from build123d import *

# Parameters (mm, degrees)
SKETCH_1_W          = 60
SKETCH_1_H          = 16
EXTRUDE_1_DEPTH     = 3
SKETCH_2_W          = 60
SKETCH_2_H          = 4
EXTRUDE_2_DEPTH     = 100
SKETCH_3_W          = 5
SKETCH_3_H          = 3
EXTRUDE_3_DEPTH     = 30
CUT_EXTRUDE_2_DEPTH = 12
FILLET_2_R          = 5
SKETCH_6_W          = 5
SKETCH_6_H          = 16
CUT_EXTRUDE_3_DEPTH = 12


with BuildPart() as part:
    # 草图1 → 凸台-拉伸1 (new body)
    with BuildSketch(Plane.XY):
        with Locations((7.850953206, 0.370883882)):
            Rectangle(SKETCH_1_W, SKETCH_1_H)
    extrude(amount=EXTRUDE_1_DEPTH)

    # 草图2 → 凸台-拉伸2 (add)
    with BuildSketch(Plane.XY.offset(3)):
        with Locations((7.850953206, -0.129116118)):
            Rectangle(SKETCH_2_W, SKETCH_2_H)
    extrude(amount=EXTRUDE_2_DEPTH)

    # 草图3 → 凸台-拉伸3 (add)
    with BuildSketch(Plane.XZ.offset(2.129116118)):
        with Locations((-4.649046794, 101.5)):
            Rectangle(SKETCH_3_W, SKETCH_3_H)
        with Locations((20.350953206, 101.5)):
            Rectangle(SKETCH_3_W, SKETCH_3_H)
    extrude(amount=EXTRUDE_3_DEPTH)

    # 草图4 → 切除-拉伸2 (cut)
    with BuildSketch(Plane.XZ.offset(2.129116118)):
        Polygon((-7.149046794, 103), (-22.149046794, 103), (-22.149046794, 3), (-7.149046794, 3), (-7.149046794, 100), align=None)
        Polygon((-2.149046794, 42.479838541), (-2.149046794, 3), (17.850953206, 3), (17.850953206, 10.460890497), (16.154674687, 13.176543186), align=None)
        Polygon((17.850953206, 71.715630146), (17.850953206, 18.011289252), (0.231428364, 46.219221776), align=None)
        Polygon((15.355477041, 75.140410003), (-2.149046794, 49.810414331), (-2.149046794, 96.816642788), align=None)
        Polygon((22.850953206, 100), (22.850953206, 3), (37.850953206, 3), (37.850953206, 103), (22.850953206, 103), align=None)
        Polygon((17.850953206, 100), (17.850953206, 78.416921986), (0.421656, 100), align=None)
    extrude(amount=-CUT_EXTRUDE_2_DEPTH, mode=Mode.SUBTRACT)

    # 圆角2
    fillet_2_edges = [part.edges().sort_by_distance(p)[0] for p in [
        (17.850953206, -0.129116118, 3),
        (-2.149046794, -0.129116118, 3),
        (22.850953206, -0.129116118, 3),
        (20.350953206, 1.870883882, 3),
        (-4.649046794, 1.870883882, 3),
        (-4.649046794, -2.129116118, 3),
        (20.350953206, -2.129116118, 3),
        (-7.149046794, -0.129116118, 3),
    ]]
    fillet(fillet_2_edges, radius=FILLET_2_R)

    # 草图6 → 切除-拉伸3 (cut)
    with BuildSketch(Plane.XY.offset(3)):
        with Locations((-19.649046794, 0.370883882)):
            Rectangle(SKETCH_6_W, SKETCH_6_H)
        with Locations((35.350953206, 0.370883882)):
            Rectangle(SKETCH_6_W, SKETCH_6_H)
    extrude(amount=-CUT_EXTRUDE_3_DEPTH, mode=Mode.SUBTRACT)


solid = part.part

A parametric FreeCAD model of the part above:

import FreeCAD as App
import Part
import Sketcher

V = App.Vector


def edges_at(feature, points):
    """Names of the edges that pass closest to the given points."""
    edges = feature.Shape.Edges
    near = lambda p: min(range(len(edges)), key=lambda i: edges[i].distToShape(Part.Vertex(*p))[0])
    return sorted({f"Edge{near(p) + 1}" for p in points})

doc = App.newDocument("Part")
body = doc.addObject("PartDesign::Body", "Body")

# Sketch on XY plane
sketch1 = body.newObject("Sketcher::SketchObject", "Sketch")
sketch1.AttachmentSupport = (doc.getObject("XY_Plane"), [""])
sketch1.MapMode = "FlatFace"
sketch1.addGeometry(Part.LineSegment(V(-22.149047, 8.370884, 0), V(-22.149047, -7.629116, 0)), False)
sketch1.addGeometry(Part.LineSegment(V(-22.149047, -7.629116, 0), V(37.850953, -7.629116, 0)), False)
sketch1.addGeometry(Part.LineSegment(V(37.850953, -7.629116, 0), V(37.850953, 8.370884, 0)), False)
sketch1.addGeometry(Part.LineSegment(V(37.850953, 8.370884, 0), V(-22.149047, 8.370884, 0)), False)
sketch1.addConstraint(Sketcher.Constraint("Coincident", 0, 2, 1, 1))
sketch1.addConstraint(Sketcher.Constraint("Coincident", 1, 2, 2, 1))
sketch1.addConstraint(Sketcher.Constraint("Coincident", 2, 2, 3, 1))
sketch1.addConstraint(Sketcher.Constraint("Coincident", 3, 2, 0, 1))
sketch1.addConstraint(Sketcher.Constraint("Vertical", 0))
sketch1.addConstraint(Sketcher.Constraint("Horizontal", 1))
sketch1.addConstraint(Sketcher.Constraint("Vertical", 2))
sketch1.addConstraint(Sketcher.Constraint("Horizontal", 3))
sketch1.addConstraint(Sketcher.Constraint("DistanceX", 1, 1, 1, 2, 60.0))
sketch1.addConstraint(Sketcher.Constraint("DistanceY", 0, 2, 0, 1, 16.0))
sketch1.addConstraint(Sketcher.Constraint("DistanceX", 0, 2, -1, 1, 22.149047))
sketch1.addConstraint(Sketcher.Constraint("DistanceY", 0, 2, -1, 1, 7.629116))
pad1 = body.newObject("PartDesign::Pad", "Pad")
pad1.Profile = sketch1
pad1.Length = 3

# Sketch on XY plane
sketch2 = body.newObject("Sketcher::SketchObject", "Sketch001")
sketch2.AttachmentSupport = (doc.getObject("XY_Plane"), [""])
sketch2.MapMode = "FlatFace"
sketch2.AttachmentOffset = App.Placement(V(0, 0, 3), App.Rotation())
sketch2.addGeometry(Part.LineSegment(V(-22.149047, 1.870884, 0), V(-22.149047, -2.129116, 0)), False)
sketch2.addGeometry(Part.LineSegment(V(-22.149047, -2.129116, 0), V(37.850953, -2.129116, 0)), False)
sketch2.addGeometry(Part.LineSegment(V(37.850953, -2.129116, 0), V(37.850953, 1.870884, 0)), False)
sketch2.addGeometry(Part.LineSegment(V(37.850953, 1.870884, 0), V(-22.149047, 1.870884, 0)), False)
sketch2.addConstraint(Sketcher.Constraint("Coincident", 0, 2, 1, 1))
sketch2.addConstraint(Sketcher.Constraint("Coincident", 1, 2, 2, 1))
sketch2.addConstraint(Sketcher.Constraint("Coincident", 2, 2, 3, 1))
sketch2.addConstraint(Sketcher.Constraint("Coincident", 3, 2, 0, 1))
sketch2.addConstraint(Sketcher.Constraint("Vertical", 0))
sketch2.addConstraint(Sketcher.Constraint("Horizontal", 1))
sketch2.addConstraint(Sketcher.Constraint("Vertical", 2))
sketch2.addConstraint(Sketcher.Constraint("Horizontal", 3))
sketch2.addConstraint(Sketcher.Constraint("DistanceX", 1, 1, 1, 2, 60.0))
sketch2.addConstraint(Sketcher.Constraint("DistanceY", 0, 2, 0, 1, 4.0))
sketch2.addConstraint(Sketcher.Constraint("DistanceX", 0, 2, -1, 1, 22.149047))
sketch2.addConstraint(Sketcher.Constraint("DistanceY", 0, 2, -1, 1, 2.129116))
pad2 = body.newObject("PartDesign::Pad", "Pad001")
pad2.Profile = sketch2
pad2.Length = 100

# Sketch on XZ plane
sketch3 = body.newObject("Sketcher::SketchObject", "Sketch002")
sketch3.AttachmentSupport = (doc.getObject("XZ_Plane"), [""])
sketch3.MapMode = "FlatFace"
sketch3.AttachmentOffset = App.Placement(V(0, 0, 2.129116), App.Rotation())
sketch3.addGeometry(Part.LineSegment(V(-7.149047, 103, 0), V(-7.149047, 100, 0)), False)
sketch3.addGeometry(Part.LineSegment(V(-7.149047, 100, 0), V(-2.149047, 100, 0)), False)
sketch3.addGeometry(Part.LineSegment(V(-2.149047, 100, 0), V(-2.149047, 103, 0)), False)
sketch3.addGeometry(Part.LineSegment(V(-2.149047, 103, 0), V(-7.149047, 103, 0)), False)
sketch3.addGeometry(Part.LineSegment(V(17.850953, 103, 0), V(17.850953, 100, 0)), False)
sketch3.addGeometry(Part.LineSegment(V(17.850953, 100, 0), V(22.850953, 100, 0)), False)
sketch3.addGeometry(Part.LineSegment(V(22.850953, 100, 0), V(22.850953, 103, 0)), False)
sketch3.addGeometry(Part.LineSegment(V(22.850953, 103, 0), V(17.850953, 103, 0)), False)
sketch3.addConstraint(Sketcher.Constraint("Coincident", 0, 2, 1, 1))
sketch3.addConstraint(Sketcher.Constraint("Coincident", 1, 2, 2, 1))
sketch3.addConstraint(Sketcher.Constraint("Coincident", 2, 2, 3, 1))
sketch3.addConstraint(Sketcher.Constraint("Coincident", 3, 2, 0, 1))
sketch3.addConstraint(Sketcher.Constraint("Coincident", 4, 2, 5, 1))
sketch3.addConstraint(Sketcher.Constraint("Coincident", 5, 2, 6, 1))
sketch3.addConstraint(Sketcher.Constraint("Coincident", 6, 2, 7, 1))
sketch3.addConstraint(Sketcher.Constraint("Coincident", 7, 2, 4, 1))
sketch3.addConstraint(Sketcher.Constraint("Vertical", 0))
sketch3.addConstraint(Sketcher.Constraint("Horizontal", 1))
sketch3.addConstraint(Sketcher.Constraint("Vertical", 2))
sketch3.addConstraint(Sketcher.Constraint("Horizontal", 3))
sketch3.addConstraint(Sketcher.Constraint("Vertical", 4))
sketch3.addConstraint(Sketcher.Constraint("Horizontal", 5))
sketch3.addConstraint(Sketcher.Constraint("Vertical", 6))
sketch3.addConstraint(Sketcher.Constraint("Horizontal", 7))
sketch3.addConstraint(Sketcher.Constraint("Horizontal", 1, 2, 4, 2))
sketch3.addConstraint(Sketcher.Constraint("Horizontal", 3, 2, 6, 2))
sketch3.addConstraint(Sketcher.Constraint("Equal", 3, 5))
sketch3.addConstraint(Sketcher.Constraint("DistanceX", 1, 1, 1, 2, 5.0))
sketch3.addConstraint(Sketcher.Constraint("DistanceY", 0, 2, 0, 1, 3.0))
sketch3.addConstraint(Sketcher.Constraint("DistanceY", -1, 1, 0, 2, 100.0))
sketch3.addConstraint(Sketcher.Constraint("DistanceX", 1, 2, 4, 2, 20.0))
sketch3.addConstraint(Sketcher.Constraint("DistanceX", 0, 2, -1, 1, 7.149047))
pad3 = body.newObject("PartDesign::Pad", "Pad002")
pad3.Profile = sketch3
pad3.Length = 30

# Sketch on XZ plane
sketch4 = body.newObject("Sketcher::SketchObject", "Sketch003")
sketch4.AttachmentSupport = (doc.getObject("XZ_Plane"), [""])
sketch4.MapMode = "FlatFace"
sketch4.AttachmentOffset = App.Placement(V(0, 0, 2.129116), App.Rotation())
sketch4.addGeometry(Part.LineSegment(V(-7.149047, 103, 0), V(-22.149047, 103, 0)), False)
sketch4.addGeometry(Part.LineSegment(V(-22.149047, 103, 0), V(-22.149047, 3, 0)), False)
sketch4.addGeometry(Part.LineSegment(V(-22.149047, 3, 0), V(-7.149047, 3, 0)), False)
sketch4.addGeometry(Part.LineSegment(V(-7.149047, 3, 0), V(-7.149047, 103, 0)), False)
sketch4.addGeometry(Part.LineSegment(V(-2.149047, 42.479839, 0), V(-2.149047, 3, 0)), False)
sketch4.addGeometry(Part.LineSegment(V(-2.149047, 3, 0), V(17.850953, 3, 0)), False)
sketch4.addGeometry(Part.LineSegment(V(17.850953, 3, 0), V(17.850953, 10.46089, 0)), False)
sketch4.addGeometry(Part.LineSegment(V(17.850953, 10.46089, 0), V(16.154675, 13.176543, 0)), False)
sketch4.addGeometry(Part.LineSegment(V(16.154675, 13.176543, 0), V(-2.149047, 42.479839, 0)), False)
sketch4.addGeometry(Part.LineSegment(V(17.850953, 18.011289, 0), V(17.850953, 71.71563, 0)), False)
sketch4.addGeometry(Part.LineSegment(V(17.850953, 71.71563, 0), V(0.231428, 46.219222, 0)), False)
sketch4.addGeometry(Part.LineSegment(V(0.231428, 46.219222, 0), V(17.850953, 18.011289, 0)), False)
sketch4.addGeometry(Part.LineSegment(V(-2.149047, 49.810414, 0), V(15.355477, 75.14041, 0)), False)
sketch4.addGeometry(Part.LineSegment(V(15.355477, 75.14041, 0), V(-2.149047, 96.816643, 0)), False)
sketch4.addGeometry(Part.LineSegment(V(-2.149047, 96.816643, 0), V(-2.149047, 49.810414, 0)), False)
sketch4.addGeometry(Part.LineSegment(V(22.850953, 3, 0), V(37.850953, 3, 0)), False)
sketch4.addGeometry(Part.LineSegment(V(37.850953, 3, 0), V(37.850953, 103, 0)), False)
sketch4.addGeometry(Part.LineSegment(V(37.850953, 103, 0), V(22.850953, 103, 0)), False)
sketch4.addGeometry(Part.LineSegment(V(22.850953, 103, 0), V(22.850953, 3, 0)), False)
sketch4.addGeometry(Part.LineSegment(V(17.850953, 78.416922, 0), V(17.850953, 100, 0)), False)
sketch4.addGeometry(Part.LineSegment(V(17.850953, 100, 0), V(0.421656, 100, 0)), False)
sketch4.addGeometry(Part.LineSegment(V(0.421656, 100, 0), V(17.850953, 78.416922, 0)), False)
sketch4.addConstraint(Sketcher.Constraint("Coincident", 0, 2, 1, 1))
sketch4.addConstraint(Sketcher.Constraint("Coincident", 1, 2, 2, 1))
sketch4.addConstraint(Sketcher.Constraint("Coincident", 2, 2, 3, 1))
sketch4.addConstraint(Sketcher.Constraint("Coincident", 3, 2, 0, 1))
sketch4.addConstraint(Sketcher.Constraint("Coincident", 4, 2, 5, 1))
sketch4.addConstraint(Sketcher.Constraint("Coincident", 5, 2, 6, 1))
sketch4.addConstraint(Sketcher.Constraint("Coincident", 6, 2, 7, 1))
sketch4.addConstraint(Sketcher.Constraint("Coincident", 7, 2, 8, 1))
sketch4.addConstraint(Sketcher.Constraint("Coincident", 8, 2, 4, 1))
sketch4.addConstraint(Sketcher.Constraint("Coincident", 9, 2, 10, 1))
sketch4.addConstraint(Sketcher.Constraint("Coincident", 10, 2, 11, 1))
sketch4.addConstraint(Sketcher.Constraint("Coincident", 11, 2, 9, 1))
sketch4.addConstraint(Sketcher.Constraint("Coincident", 12, 2, 13, 1))
sketch4.addConstraint(Sketcher.Constraint("Coincident", 13, 2, 14, 1))
sketch4.addConstraint(Sketcher.Constraint("Coincident", 14, 2, 12, 1))
sketch4.addConstraint(Sketcher.Constraint("Coincident", 15, 2, 16, 1))
sketch4.addConstraint(Sketcher.Constraint("Coincident", 16, 2, 17, 1))
sketch4.addConstraint(Sketcher.Constraint("Coincident", 17, 2, 18, 1))
sketch4.addConstraint(Sketcher.Constraint("Coincident", 18, 2, 15, 1))
sketch4.addConstraint(Sketcher.Constraint("Coincident", 19, 2, 20, 1))
sketch4.addConstraint(Sketcher.Constraint("Coincident", 20, 2, 21, 1))
sketch4.addConstraint(Sketcher.Constraint("Coincident", 21, 2, 19, 1))
sketch4.addConstraint(Sketcher.Constraint("Horizontal", 0))
sketch4.addConstraint(Sketcher.Constraint("Vertical", 1))
sketch4.addConstraint(Sketcher.Constraint("Horizontal", 2))
sketch4.addConstraint(Sketcher.Constraint("Vertical", 3))
sketch4.addConstraint(Sketcher.Constraint("Vertical", 4))
sketch4.addConstraint(Sketcher.Constraint("Horizontal", 5))
sketch4.addConstraint(Sketcher.Constraint("Vertical", 6))
sketch4.addConstraint(Sketcher.Constraint("Vertical", 9))
sketch4.addConstraint(Sketcher.Constraint("Vertical", 14))
sketch4.addConstraint(Sketcher.Constraint("Horizontal", 15))
sketch4.addConstraint(Sketcher.Constraint("Vertical", 16))
sketch4.addConstraint(Sketcher.Constraint("Horizontal", 17))
sketch4.addConstraint(Sketcher.Constraint("Vertical", 18))
sketch4.addConstraint(Sketcher.Constraint("Vertical", 19))
sketch4.addConstraint(Sketcher.Constraint("Horizontal", 20))
sketch4.addConstraint(Sketcher.Constraint("Parallel", 7, 8))
sketch4.addConstraint(Sketcher.Constraint("Parallel", 8, 11))
sketch4.addConstraint(Sketcher.Constraint("Parallel", 10, 12))
sketch4.addConstraint(Sketcher.Constraint("Parallel", 13, 21))
sketch4.addConstraint(Sketcher.Constraint("Horizontal", 2, 2, 4, 2))
sketch4.addConstraint(Sketcher.Constraint("Horizontal", 5, 2, 15, 2))
sketch4.addConstraint(Sketcher.Constraint("Horizontal", 3, 2, 16, 2))
sketch4.addConstraint(Sketcher.Constraint("Vertical", 6, 2, 9, 2))
sketch4.addConstraint(Sketcher.Constraint("Vertical", 8, 2, 13, 2))
sketch4.addConstraint(Sketcher.Constraint("Vertical", 11, 2, 19, 2))
sketch4.addConstraint(Sketcher.Constraint("Equal", 2, 15))
sketch4.addConstraint(Sketcher.Constraint("DistanceX", 0, 2, 0, 1, 15.0))
sketch4.addConstraint(Sketcher.Constraint("DistanceX", 5, 1, 5, 2, 20.0))
sketch4.addConstraint(Sketcher.Constraint("DistanceY", 1, 2, 1, 1, 100.0))
sketch4.addConstraint(Sketcher.Constraint("DistanceY", -1, 1, 0, 2, 103.0))
sketch4.addConstraint(Sketcher.Constraint("DistanceY", -1, 1, 19, 2, 100.0))
sketch4.addConstraint(Sketcher.Constraint("DistanceX", 2, 2, 4, 2, 5.0))
sketch4.addConstraint(Sketcher.Constraint("DistanceX", 5, 2, 15, 2, 20.0))
sketch4.addConstraint(Sketcher.Constraint("Distance", 8, 34.550099))
sketch4.addConstraint(Sketcher.Constraint("DistanceY", 4, 2, 4, 1, 39.479839))
sketch4.addConstraint(Sketcher.Constraint("DistanceY", 6, 1, 6, 2, 7.46089))
sketch4.addConstraint(Sketcher.Constraint("DistanceY", 9, 1, 9, 2, 53.704341))
sketch4.addConstraint(Sketcher.Constraint("DistanceY", 14, 2, 14, 1, 47.006228))
sketch4.addConstraint(Sketcher.Constraint("DistanceY", 19, 1, 19, 2, 21.583078))
sketch4.addConstraint(Sketcher.Constraint("DistanceY", 6, 2, 11, 2, 7.550399))
sketch4.addConstraint(Sketcher.Constraint("Distance", 10, 30.992168))
sketch4.addConstraint(Sketcher.Constraint("Distance", 21, 27.741839))
sketch4.addConstraint(Sketcher.Constraint("DistanceX", -1, 1, 10, 2, 0.231428))
sketch4.addConstraint(Sketcher.Constraint("DistanceY", -1, 1, 12, 2, 75.14041))
pocket1 = body.newObject("PartDesign::Pocket", "Pocket")
pocket1.Profile = sketch4
pocket1.Length = 12
doc.recompute()

fillet = body.newObject("PartDesign::Fillet", "Fillet")
fillet.Base = (pocket1, edges_at(pocket1, [
    (17.851, -0.129, 3),
    (-2.149, -0.129, 3),
    (22.851, -0.129, 3),
    (20.351, 1.871, 3),
    (-4.649, 1.871, 3),
    (-4.649, -2.129, 3),
    (20.351, -2.129, 3),
    (-7.149, -0.129, 3),
]))
fillet.Radius = 5

# Sketch on XY plane
sketch5 = body.newObject("Sketcher::SketchObject", "Sketch004")
sketch5.AttachmentSupport = (doc.getObject("XY_Plane"), [""])
sketch5.MapMode = "FlatFace"
sketch5.AttachmentOffset = App.Placement(V(0, 0, 3), App.Rotation())
sketch5.addGeometry(Part.LineSegment(V(-22.149047, 8.370884, 0), V(-22.149047, -7.629116, 0)), False)
sketch5.addGeometry(Part.LineSegment(V(-22.149047, -7.629116, 0), V(-17.149047, -7.629116, 0)), False)
sketch5.addGeometry(Part.LineSegment(V(-17.149047, -7.629116, 0), V(-17.149047, 8.370884, 0)), False)
sketch5.addGeometry(Part.LineSegment(V(-17.149047, 8.370884, 0), V(-22.149047, 8.370884, 0)), False)
sketch5.addGeometry(Part.LineSegment(V(32.850953, 8.370884, 0), V(32.850953, -7.629116, 0)), False)
sketch5.addGeometry(Part.LineSegment(V(32.850953, -7.629116, 0), V(37.850953, -7.629116, 0)), False)
sketch5.addGeometry(Part.LineSegment(V(37.850953, -7.629116, 0), V(37.850953, 8.370884, 0)), False)
sketch5.addGeometry(Part.LineSegment(V(37.850953, 8.370884, 0), V(32.850953, 8.370884, 0)), False)
sketch5.addConstraint(Sketcher.Constraint("Coincident", 0, 2, 1, 1))
sketch5.addConstraint(Sketcher.Constraint("Coincident", 1, 2, 2, 1))
sketch5.addConstraint(Sketcher.Constraint("Coincident", 2, 2, 3, 1))
sketch5.addConstraint(Sketcher.Constraint("Coincident", 3, 2, 0, 1))
sketch5.addConstraint(Sketcher.Constraint("Coincident", 4, 2, 5, 1))
sketch5.addConstraint(Sketcher.Constraint("Coincident", 5, 2, 6, 1))
sketch5.addConstraint(Sketcher.Constraint("Coincident", 6, 2, 7, 1))
sketch5.addConstraint(Sketcher.Constraint("Coincident", 7, 2, 4, 1))
sketch5.addConstraint(Sketcher.Constraint("Vertical", 0))
sketch5.addConstraint(Sketcher.Constraint("Horizontal", 1))
sketch5.addConstraint(Sketcher.Constraint("Vertical", 2))
sketch5.addConstraint(Sketcher.Constraint("Horizontal", 3))
sketch5.addConstraint(Sketcher.Constraint("Vertical", 4))
sketch5.addConstraint(Sketcher.Constraint("Horizontal", 5))
sketch5.addConstraint(Sketcher.Constraint("Vertical", 6))
sketch5.addConstraint(Sketcher.Constraint("Horizontal", 7))
sketch5.addConstraint(Sketcher.Constraint("Horizontal", 1, 2, 4, 2))
sketch5.addConstraint(Sketcher.Constraint("Horizontal", 3, 2, 6, 2))
sketch5.addConstraint(Sketcher.Constraint("Equal", 3, 5))
sketch5.addConstraint(Sketcher.Constraint("DistanceX", 1, 1, 1, 2, 5.0))
sketch5.addConstraint(Sketcher.Constraint("DistanceY", 0, 2, 0, 1, 16.0))
sketch5.addConstraint(Sketcher.Constraint("DistanceX", 1, 2, 4, 2, 50.0))
sketch5.addConstraint(Sketcher.Constraint("DistanceX", 0, 2, -1, 1, 22.149047))
sketch5.addConstraint(Sketcher.Constraint("DistanceY", 0, 2, -1, 1, 7.629116))
pocket2 = body.newObject("PartDesign::Pocket", "Pocket001")
pocket2.Profile = sketch5
pocket2.Length = 12

doc.recompute()
